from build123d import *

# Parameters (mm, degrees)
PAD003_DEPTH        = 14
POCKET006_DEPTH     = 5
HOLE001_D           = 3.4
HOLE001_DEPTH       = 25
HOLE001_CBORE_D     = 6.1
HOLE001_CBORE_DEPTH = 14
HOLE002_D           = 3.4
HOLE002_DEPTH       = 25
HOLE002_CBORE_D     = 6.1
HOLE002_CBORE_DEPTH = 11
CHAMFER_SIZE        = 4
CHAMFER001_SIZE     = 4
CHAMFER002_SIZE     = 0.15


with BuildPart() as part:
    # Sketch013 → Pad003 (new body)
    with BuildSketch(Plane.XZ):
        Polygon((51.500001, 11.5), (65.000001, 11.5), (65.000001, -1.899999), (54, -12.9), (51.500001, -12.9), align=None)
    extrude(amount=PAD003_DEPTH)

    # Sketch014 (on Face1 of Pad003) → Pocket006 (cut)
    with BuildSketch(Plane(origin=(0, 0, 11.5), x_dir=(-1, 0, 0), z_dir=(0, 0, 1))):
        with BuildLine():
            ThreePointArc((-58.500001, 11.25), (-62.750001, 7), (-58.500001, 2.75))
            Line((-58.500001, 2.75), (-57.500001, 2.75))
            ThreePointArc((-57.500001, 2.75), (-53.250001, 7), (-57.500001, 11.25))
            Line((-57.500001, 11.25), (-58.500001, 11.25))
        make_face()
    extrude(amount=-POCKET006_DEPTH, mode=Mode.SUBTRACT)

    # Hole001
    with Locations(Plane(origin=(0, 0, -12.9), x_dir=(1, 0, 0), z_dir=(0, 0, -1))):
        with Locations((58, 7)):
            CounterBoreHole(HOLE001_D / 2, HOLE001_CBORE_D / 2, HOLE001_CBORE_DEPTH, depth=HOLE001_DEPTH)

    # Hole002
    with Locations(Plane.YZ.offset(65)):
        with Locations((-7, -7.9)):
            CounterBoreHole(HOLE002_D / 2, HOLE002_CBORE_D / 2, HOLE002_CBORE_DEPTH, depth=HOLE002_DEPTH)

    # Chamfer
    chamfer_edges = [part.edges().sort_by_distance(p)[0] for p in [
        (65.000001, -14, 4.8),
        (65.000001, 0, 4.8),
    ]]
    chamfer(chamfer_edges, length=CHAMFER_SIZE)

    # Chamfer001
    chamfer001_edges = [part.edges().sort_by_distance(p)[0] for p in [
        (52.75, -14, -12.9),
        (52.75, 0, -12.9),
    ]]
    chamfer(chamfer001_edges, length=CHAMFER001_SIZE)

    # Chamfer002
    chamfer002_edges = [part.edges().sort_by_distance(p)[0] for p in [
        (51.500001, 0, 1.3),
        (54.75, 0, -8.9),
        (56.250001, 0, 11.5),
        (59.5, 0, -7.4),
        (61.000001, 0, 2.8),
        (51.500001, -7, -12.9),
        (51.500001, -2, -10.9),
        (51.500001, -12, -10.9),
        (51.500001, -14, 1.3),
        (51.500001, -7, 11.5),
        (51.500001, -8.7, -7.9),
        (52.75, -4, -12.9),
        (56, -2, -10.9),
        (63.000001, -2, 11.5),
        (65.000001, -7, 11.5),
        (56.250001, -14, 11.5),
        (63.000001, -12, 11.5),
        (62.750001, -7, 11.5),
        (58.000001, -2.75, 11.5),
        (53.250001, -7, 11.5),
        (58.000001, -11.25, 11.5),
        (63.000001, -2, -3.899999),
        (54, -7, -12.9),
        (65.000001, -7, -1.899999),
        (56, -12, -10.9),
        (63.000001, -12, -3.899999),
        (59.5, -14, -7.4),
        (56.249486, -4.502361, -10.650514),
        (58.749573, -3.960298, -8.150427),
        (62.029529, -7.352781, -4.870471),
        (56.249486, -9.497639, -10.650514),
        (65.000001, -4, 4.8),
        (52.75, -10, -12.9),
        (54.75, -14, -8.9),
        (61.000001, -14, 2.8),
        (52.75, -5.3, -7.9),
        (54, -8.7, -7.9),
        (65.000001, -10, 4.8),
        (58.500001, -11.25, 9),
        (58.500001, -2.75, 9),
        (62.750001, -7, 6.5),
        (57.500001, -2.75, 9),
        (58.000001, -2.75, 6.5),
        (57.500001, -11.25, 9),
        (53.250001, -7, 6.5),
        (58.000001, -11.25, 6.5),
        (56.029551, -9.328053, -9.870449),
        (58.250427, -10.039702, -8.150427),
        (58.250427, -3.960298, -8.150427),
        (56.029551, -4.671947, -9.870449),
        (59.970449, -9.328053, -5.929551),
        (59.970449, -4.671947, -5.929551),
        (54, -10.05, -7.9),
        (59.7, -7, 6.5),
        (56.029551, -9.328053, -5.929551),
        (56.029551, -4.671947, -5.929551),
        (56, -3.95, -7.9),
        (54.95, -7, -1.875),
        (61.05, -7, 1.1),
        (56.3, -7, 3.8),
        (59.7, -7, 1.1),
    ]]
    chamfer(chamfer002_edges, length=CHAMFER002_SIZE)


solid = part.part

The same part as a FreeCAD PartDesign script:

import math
import FreeCAD as App
import Part
import Sketcher
from FreeCAD import Vector
Q = App.Units.Quantity


def edges_at(feature, points):
    """Names of the edges that pass closest to the given points."""
    edges = feature.Shape.Edges
    near = lambda p: min(range(len(edges)), key=lambda i: edges[i].distToShape(Part.Vertex(*p))[0])
    return sorted({f"Edge{near(p) + 1}" for p in points})

doc = App.newDocument("Part")
params = doc.addObject("Spreadsheet::Sheet", "Params")
for row, (alias, value) in enumerate([
    ("sketch1_width", "13.5 mm"),
    ("sketch1_width2", "2.499999 mm"),
    ("sketch1_height", "24.4 mm"),
    ("pad1_length", "14 mm"),
    ("sketch2_width", "1 mm"),
    ("sketch2_radius", "4.25 mm"),
    ("pocket1_length", "5 mm"),
    ("sketch3_diameter", "3.4 mm"),
    ("hole_diameter", "3.4 mm"),
    ("hole_depth", "25 mm"),
    ("hole_cbore_diameter", "6.1 mm"),
    ("hole_cbore_depth", "14 mm"),
    ("sketch4_diameter", "3.4 mm"),
    ("hole2_diameter", "3.4 mm"),
    ("hole2_depth", "25 mm"),
    ("hole2_cbore_diameter", "6.1 mm"),
    ("hole2_cbore_depth", "11 mm"),
    ("chamfer_size", "4 mm"),
    ("chamfer2_size", "4 mm"),
    ("chamfer3_size", "0.15 mm"),
], start=1):
    params.set(f"A{row}", alias)
    params.set(f"B{row}", "=" + value)
    params.setAlias(f"B{row}", alias)

body = doc.addObject("PartDesign::Body", "Body")

# Sketch on XZ plane
sketch1 = body.newObject("Sketcher::SketchObject", "Sketch")
sketch1.AttachmentSupport = (doc.getObject("XZ_Plane"), [""])
sketch1.MapMode = "FlatFace"
sketch1.addGeometry(Part.LineSegment(Vector(65, 11.5, 0), Vector(51.5, 11.5, 0)), False)
sketch1.addGeometry(Part.LineSegment(Vector(51.5, 11.5, 0), Vector(51.5, -12.9, 0)), False)
sketch1.addGeometry(Part.LineSegment(Vector(51.5, -12.9, 0), Vector(54, -12.9, 0)), False)
sketch1.addGeometry(Part.LineSegment(Vector(54, -12.9, 0), Vector(65, -1.9, 0)), False)
sketch1.addGeometry(Part.LineSegment(Vector(65, -1.9, 0), Vector(65, 11.5, 0)), False)
sketch1.addConstraint(Sketcher.Constraint("Coincident", 0, 2, 1, 1))
sketch1.addConstraint(Sketcher.Constraint("Coincident", 1, 2, 2, 1))
sketch1.addConstraint(Sketcher.Constraint("Coincident", 2, 2, 3, 1))
sketch1.addConstraint(Sketcher.Constraint("Coincident", 3, 2, 4, 1))
sketch1.addConstraint(Sketcher.Constraint("Coincident", 4, 2, 0, 1))
sketch1.addConstraint(Sketcher.Constraint("Horizontal", 0))
sketch1.addConstraint(Sketcher.Constraint("Vertical", 1))
sketch1.addConstraint(Sketcher.Constraint("Horizontal", 2))
sketch1.addConstraint(Sketcher.Constraint("Vertical", 4))
sketch1.addConstraint(Sketcher.Constraint("Angle", 3, Q("45 deg")))
sketch1.addConstraint(Sketcher.Constraint("DistanceX", 0, 2, 0, 1, Q("13.5 mm")))
sketch1.addConstraint(Sketcher.Constraint("DistanceX", 2, 1, 2, 2, Q("2.499999 mm")))
sketch1.addConstraint(Sketcher.Constraint("DistanceY", 1, 2, 1, 1, Q("24.4 mm")))
sketch1.addConstraint(Sketcher.Constraint("DistanceX", -1, 1, 2, 2, Q("54 mm")))
sketch1.addConstraint(Sketcher.Constraint("DistanceY", -1, 1, 0, 2, Q("11.5 mm")))
sketch1.setExpression("Constraints[10]", "Params.sketch1_width")
sketch1.setExpression("Constraints[11]", "Params.sketch1_width2")
sketch1.setExpression("Constraints[12]", "Params.sketch1_height")
pad1 = body.newObject("PartDesign::Pad", "Pad")
pad1.Profile = sketch1
pad1.setExpression("Length", "Params.pad1_length")

# Sketch on XY plane
sketch2 = body.newObject("Sketcher::SketchObject", "Sketch001")
sketch2.AttachmentSupport = (doc.getObject("XY_Plane"), [""])
sketch2.MapMode = "FlatFace"
sketch2.AttachmentOffset = App.Placement(Vector(0, 0, 11.5), App.Rotation())
sketch2.addGeometry(Part.ArcOfCircle(Part.Circle(Vector(58.5, -7, 0), Vector(0, 0, 1), 4.2), math.radians(-90), math.radians(90)), False)
sketch2.addGeometry(Part.LineSegment(Vector(58.5, -2.8, 0), Vector(57.5, -2.8, 0)), False)
sketch2.addGeometry(Part.ArcOfCircle(Part.Circle(Vector(57.5, -7, 0), Vector(0, 0, 1), 4.2), math.radians(90), math.radians(270)), False)
sketch2.addGeometry(Part.LineSegment(Vector(57.5, -11.2, 0), Vector(58.5, -11.2, 0)), False)
sketch2.addConstraint(Sketcher.Constraint("Tangent", 0, 2, 1, 1))
sketch2.addConstraint(Sketcher.Constraint("Tangent", 1, 2, 2, 1))
sketch2.addConstraint(Sketcher.Constraint("Tangent", 2, 2, 3, 1))
sketch2.addConstraint(Sketcher.Constraint("Tangent", 3, 2, 0, 1))
sketch2.addConstraint(Sketcher.Constraint("Horizontal", 1))
sketch2.addConstraint(Sketcher.Constraint("Horizontal", 3))
sketch2.addConstraint(Sketcher.Constraint("DistanceX", 1, 2, 1, 1, Q("1 mm")))
sketch2.addConstraint(Sketcher.Constraint("Radius", 0, Q("4.25 mm")))
sketch2.addConstraint(Sketcher.Constraint("DistanceY", 0, 3, -1, 1, Q("7 mm")))
sketch2.addConstraint(Sketcher.Constraint("DistanceX", -1, 1, 0, 3, Q("58.500001 mm")))
sketch2.setExpression("Constraints[6]", "Params.sketch2_width")
sketch2.setExpression("Constraints[7]", "Params.sketch2_radius")
pocket1 = body.newObject("PartDesign::Pocket", "Pocket")
pocket1.Profile = sketch2
pocket1.setExpression("Length", "Params.pocket1_length")

# Sketch on XY plane
sketch3 = body.newObject("Sketcher::SketchObject", "Sketch002")
sketch3.AttachmentSupport = (doc.getObject("XY_Plane"), [""])
sketch3.MapMode = "FlatFace"
sketch3.AttachmentOffset = App.Placement(Vector(0, 0, -12.9), App.Rotation())
sketch3.addGeometry(Part.Circle(Vector(58, -7, 0), Vector(0, 0, 1), 1.7), False)
sketch3.addConstraint(Sketcher.Constraint("Diameter", 0, Q("3.4 mm")))
sketch3.addConstraint(Sketcher.Constraint("DistanceX", -1, 1, 0, 3, Q("58 mm")))
sketch3.addConstraint(Sketcher.Constraint("DistanceY", 0, 3, -1, 1, Q("7 mm")))
sketch3.setExpression("Constraints[0]", "Params.sketch3_diameter")
doc.recompute()
hole = body.newObject("PartDesign::Hole", "Hole")
hole.Profile = sketch3
hole.ThreadType = "None"
hole.setExpression("Diameter", "Params.hole_diameter")
hole.DepthType = "Dimension"
hole.setExpression("Depth", "Params.hole_depth")
hole.DrillPoint = "Flat"
hole.HoleCutType = "Counterbore"
hole.setExpression("HoleCutDiameter", "Params.hole_cbore_diameter")
hole.setExpression("HoleCutDepth", "Params.hole_cbore_depth")
hole.Reversed = True

# Sketch on YZ plane
sketch4 = body.newObject("Sketcher::SketchObject", "Sketch003")
sketch4.AttachmentSupport = (doc.getObject("YZ_Plane"), [""])
sketch4.MapMode = "FlatFace"
sketch4.AttachmentOffset = App.Placement(Vector(0, 0, 65), App.Rotation())
sketch4.addGeometry(Part.Circle(Vector(-7, -7.9, 0), Vector(0, 0, 1), 1.7), False)
sketch4.addConstraint(Sketcher.Constraint("Diameter", 0, Q("3.4 mm")))
sketch4.addConstraint(Sketcher.Constraint("DistanceX", 0, 3, -1, 1, Q("7 mm")))
sketch4.addConstraint(Sketcher.Constraint("DistanceY", 0, 3, -1, 1, Q("7.9 mm")))
sketch4.setExpression("Constraints[0]", "Params.sketch4_diameter")
doc.recompute()
hole2 = body.newObject("PartDesign::Hole", "Hole001")
hole2.Profile = sketch4
hole2.ThreadType = "None"
hole2.setExpression("Diameter", "Params.hole2_diameter")
hole2.DepthType = "Dimension"
hole2.setExpression("Depth", "Params.hole2_depth")
hole2.DrillPoint = "Flat"
hole2.HoleCutType = "Counterbore"
hole2.setExpression("HoleCutDiameter", "Params.hole2_cbore_diameter")
hole2.setExpression("HoleCutDepth", "Params.hole2_cbore_depth")
doc.recompute()

chamfer = body.newObject("PartDesign::Chamfer", "Chamfer")
chamfer.Base = (hole2, edges_at(hole2, [(65, -14, 4.8), (65, 0, 4.8)]))
chamfer.setExpression("Size", "Params.chamfer_size")
doc.recompute()

chamfer2 = body.newObject("PartDesign::Chamfer", "Chamfer001")
chamfer2.Base = (chamfer, edges_at(chamfer, [(52.75, -14, -12.9), (52.75, 0, -12.9)]))
chamfer2.setExpression("Size", "Params.chamfer2_size")
doc.recompute()

chamfer3 = body.newObject("PartDesign::Chamfer", "Chamfer002")
chamfer3.Base = (chamfer2, ["Edge1"])
chamfer3.UseAllEdges = True
chamfer3.setExpression("Size", "Params.chamfer3_size")

doc.recompute()
